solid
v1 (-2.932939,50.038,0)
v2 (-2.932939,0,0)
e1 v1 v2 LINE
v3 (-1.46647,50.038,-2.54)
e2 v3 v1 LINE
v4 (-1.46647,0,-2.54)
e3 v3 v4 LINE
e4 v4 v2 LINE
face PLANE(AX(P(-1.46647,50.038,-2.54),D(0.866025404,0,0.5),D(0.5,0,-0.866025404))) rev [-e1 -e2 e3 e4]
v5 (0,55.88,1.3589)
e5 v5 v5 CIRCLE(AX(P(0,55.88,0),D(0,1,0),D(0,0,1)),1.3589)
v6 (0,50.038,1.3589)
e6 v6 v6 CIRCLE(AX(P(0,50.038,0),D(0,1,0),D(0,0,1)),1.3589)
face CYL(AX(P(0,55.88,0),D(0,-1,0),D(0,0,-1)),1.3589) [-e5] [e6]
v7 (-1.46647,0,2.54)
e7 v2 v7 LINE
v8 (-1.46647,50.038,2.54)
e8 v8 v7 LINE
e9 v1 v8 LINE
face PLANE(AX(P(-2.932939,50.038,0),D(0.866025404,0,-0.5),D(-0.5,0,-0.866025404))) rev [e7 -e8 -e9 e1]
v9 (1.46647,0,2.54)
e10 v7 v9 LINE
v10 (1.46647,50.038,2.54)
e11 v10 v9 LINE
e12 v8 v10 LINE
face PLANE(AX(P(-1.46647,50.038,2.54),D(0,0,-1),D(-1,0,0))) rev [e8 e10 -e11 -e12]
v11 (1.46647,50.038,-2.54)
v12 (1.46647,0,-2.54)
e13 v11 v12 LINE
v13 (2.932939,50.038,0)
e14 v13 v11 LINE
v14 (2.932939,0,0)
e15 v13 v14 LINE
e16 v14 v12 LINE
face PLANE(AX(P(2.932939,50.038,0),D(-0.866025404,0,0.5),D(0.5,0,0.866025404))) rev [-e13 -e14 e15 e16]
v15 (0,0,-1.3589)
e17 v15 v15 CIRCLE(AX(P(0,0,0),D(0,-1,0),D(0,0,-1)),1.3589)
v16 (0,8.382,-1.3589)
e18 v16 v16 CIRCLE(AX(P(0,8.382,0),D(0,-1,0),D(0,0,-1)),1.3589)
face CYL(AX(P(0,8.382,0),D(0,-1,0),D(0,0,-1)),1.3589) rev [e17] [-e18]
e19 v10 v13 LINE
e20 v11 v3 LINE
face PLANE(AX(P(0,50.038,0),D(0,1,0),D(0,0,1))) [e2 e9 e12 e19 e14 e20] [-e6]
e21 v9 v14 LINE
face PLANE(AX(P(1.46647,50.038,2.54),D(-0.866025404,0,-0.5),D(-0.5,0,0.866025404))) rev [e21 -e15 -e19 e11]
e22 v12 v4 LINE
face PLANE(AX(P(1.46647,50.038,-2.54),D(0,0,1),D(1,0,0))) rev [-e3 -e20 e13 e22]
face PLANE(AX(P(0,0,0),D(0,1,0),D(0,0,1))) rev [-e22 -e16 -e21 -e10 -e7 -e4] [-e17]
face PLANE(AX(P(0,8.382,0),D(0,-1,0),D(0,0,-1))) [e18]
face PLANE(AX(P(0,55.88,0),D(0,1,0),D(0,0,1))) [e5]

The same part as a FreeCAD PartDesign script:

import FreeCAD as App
import Part
import Sketcher

V = App.Vector
Q = App.Units.Quantity

doc = App.newDocument("Part")
params = doc.addObject("Spreadsheet::Sheet", "Params")
for row, (alias, value) in enumerate([
    ("pad1_length", "1.97 in"),
    ("sketch2_diameter", "0.107 in"),
    ("pad2_length", "0.23 in"),
    ("sketch3_diameter", "0.107 in"),
    ("pocket1_length", "0.33 in"),
], start=1):
    params.set(f"A{row}", alias)
    params.set(f"B{row}", "=" + value)
    params.setAlias(f"B{row}", alias)

body = doc.addObject("PartDesign::Body", "Body")

# Sketch on XZ plane
sketch1 = doc.addObject("Sketcher::SketchObject", "Sketch")
body.addObject(sketch1)
sketch1.AttachmentSupport = (doc.XZ_Plane, [""])
sketch1.MapMode = "FlatFace"
sketch1.addGeometry([
    Part.LineSegment(V(2.9, 0, 0), V(1.5, -2.5, 0)),  # 0
    Part.LineSegment(V(1.5, -2.5, 0), V(-1.5, -2.5, 0)),  # 1
    Part.LineSegment(V(-1.5, -2.5, 0), V(-2.9, 0, 0)),  # 2
    Part.LineSegment(V(-2.9, 0, 0), V(-1.5, 2.5, 0)),  # 3
    Part.LineSegment(V(-1.5, 2.5, 0), V(1.5, 2.5, 0)),  # 4
    Part.LineSegment(V(1.5, 2.5, 0), V(2.9, 0, 0)),  # 5
], False)
sketch1.addConstraint([
    Sketcher.Constraint("Coincident", 0, 2, 1, 1),
    Sketcher.Constraint("Coincident", 1, 2, 2, 1),
    Sketcher.Constraint("Coincident", 2, 2, 3, 1),
    Sketcher.Constraint("Coincident", 3, 2, 4, 1),
    Sketcher.Constraint("Coincident", 4, 2, 5, 1),
    Sketcher.Constraint("Coincident", 5, 2, 0, 1),
    Sketcher.Constraint("Horizontal", 1),
    Sketcher.Constraint("Horizontal", 4),
    Sketcher.Constraint("Symmetric", 0, 2, 3, 2, -1, 1),
    Sketcher.Constraint("Symmetric", 2, 2, 5, 2, -1, 1),
    Sketcher.Constraint("PointOnObject", 2, 2, -1),
    Sketcher.Constraint("Parallel", 2, 5),
    Sketcher.Constraint("Vertical", 1, 2, 3, 2),
    Sketcher.Constraint("Angle", 0, Q("-120 deg")),
    Sketcher.Constraint("DistanceY", 0, 2, -1, 1, Q("0.1 in")),
    Sketcher.Constraint("DistanceX", 1, 2, 1, 1, Q("2.932939 mm")),
])
pad1 = doc.addObject("PartDesign::Pad", "Pad")
body.addObject(pad1)
pad1.Profile = sketch1
pad1.setExpression("Length", "Params.pad1_length")
pad1.Reversed = True

# Sketch on XZ plane
sketch2 = doc.addObject("Sketcher::SketchObject", "Sketch001")
body.addObject(sketch2)
sketch2.AttachmentSupport = (doc.XZ_Plane, [""])
sketch2.MapMode = "FlatFace"
sketch2.AttachmentOffset = App.Placement(V(0, 0, -1.97 * 25.4), App.Rotation())
sketch2.addGeometry(Part.Circle(V(0, 0, 0), V(0, 0, 1), 1.4), False)
sketch2.addConstraint([
    Sketcher.Constraint("Coincident", 0, 3, -1, 1),
    Sketcher.Constraint("Diameter", 0, Q("0.107 in")),
])
sketch2.setExpression("Constraints[1]", "Params.sketch2_diameter")
pad2 = doc.addObject("PartDesign::Pad", "Pad001")
body.addObject(pad2)
pad2.Profile = sketch2
pad2.setExpression("Length", "Params.pad2_length")
pad2.Reversed = True

# Sketch on XZ plane
sketch3 = doc.addObject("Sketcher::SketchObject", "Sketch002")
body.addObject(sketch3)
sketch3.AttachmentSupport = (doc.XZ_Plane, [""])
sketch3.MapMode = "FlatFace"
sketch3.addGeometry(Part.Circle(V(0, 0, 0), V(0, 0, 1), 1.4), False)
sketch3.addConstraint([
    Sketcher.Constraint("Coincident", 0, 3, -1, 1),
    Sketcher.Constraint("Diameter", 0, Q("0.107 in")),
])
sketch3.setExpression("Constraints[1]", "Params.sketch3_diameter")
pocket1 = doc.addObject("PartDesign::Pocket", "Pocket")
body.addObject(pocket1)
pocket1.Profile = sketch3
pocket1.setExpression("Length", "Params.pocket1_length")

doc.recompute()
